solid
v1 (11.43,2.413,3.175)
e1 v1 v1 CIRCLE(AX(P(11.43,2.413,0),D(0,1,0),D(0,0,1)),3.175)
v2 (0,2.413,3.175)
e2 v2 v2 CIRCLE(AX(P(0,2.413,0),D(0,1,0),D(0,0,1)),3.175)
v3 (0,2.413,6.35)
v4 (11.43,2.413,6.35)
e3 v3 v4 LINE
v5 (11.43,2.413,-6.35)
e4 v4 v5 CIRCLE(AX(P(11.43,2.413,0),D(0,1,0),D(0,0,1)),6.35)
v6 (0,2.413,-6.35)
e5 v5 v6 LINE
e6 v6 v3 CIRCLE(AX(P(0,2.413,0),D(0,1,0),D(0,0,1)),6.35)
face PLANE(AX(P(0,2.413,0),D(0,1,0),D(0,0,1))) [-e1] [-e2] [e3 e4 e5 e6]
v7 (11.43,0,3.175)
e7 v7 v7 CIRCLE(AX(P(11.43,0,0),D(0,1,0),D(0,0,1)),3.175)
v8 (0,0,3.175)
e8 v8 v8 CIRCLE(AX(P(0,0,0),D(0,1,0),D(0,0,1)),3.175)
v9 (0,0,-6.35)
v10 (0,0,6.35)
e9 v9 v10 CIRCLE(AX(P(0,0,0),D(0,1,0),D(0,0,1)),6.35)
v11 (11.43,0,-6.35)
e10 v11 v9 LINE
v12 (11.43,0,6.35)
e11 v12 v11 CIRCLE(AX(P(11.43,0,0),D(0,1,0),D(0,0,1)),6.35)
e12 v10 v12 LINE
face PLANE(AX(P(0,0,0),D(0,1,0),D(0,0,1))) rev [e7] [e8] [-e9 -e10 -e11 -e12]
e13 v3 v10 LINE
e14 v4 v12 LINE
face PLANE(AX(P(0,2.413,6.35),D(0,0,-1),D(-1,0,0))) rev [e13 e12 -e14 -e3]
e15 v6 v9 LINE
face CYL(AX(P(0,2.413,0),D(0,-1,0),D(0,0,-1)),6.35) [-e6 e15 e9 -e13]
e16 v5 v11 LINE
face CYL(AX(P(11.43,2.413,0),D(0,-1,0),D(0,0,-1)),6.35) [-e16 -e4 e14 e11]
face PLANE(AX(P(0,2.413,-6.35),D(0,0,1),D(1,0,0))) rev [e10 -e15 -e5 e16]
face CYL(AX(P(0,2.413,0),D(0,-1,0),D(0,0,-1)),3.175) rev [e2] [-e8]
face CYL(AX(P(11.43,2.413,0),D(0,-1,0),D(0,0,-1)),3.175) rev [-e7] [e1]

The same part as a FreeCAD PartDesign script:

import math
import FreeCAD as App
import Part
import Sketcher
Q = App.Units.Quantity

doc = App.newDocument("Part")
body = doc.addObject("PartDesign::Body", "Body")

# Sketch on XZ plane
sketch1 = body.newObject("Sketcher::SketchObject", "Sketch")
sketch1.AttachmentSupport = (doc.getObject("XZ_Plane"), [""])
sketch1.MapMode = "FlatFace"
sketch1.addGeometry(Part.LineSegment(App.Vector(11.4, -6.3, 0), App.Vector(0, -6.3, 0)), False)
sketch1.addGeometry(Part.ArcOfCircle(Part.Circle(App.Vector(0, 0, 0), App.Vector(0, 0, 1), 6.3), math.radians(90), math.radians(270)), False)
sketch1.addGeometry(Part.LineSegment(App.Vector(0, 6.3, 0), App.Vector(11.4, 6.3, 0)), False)
sketch1.addGeometry(Part.ArcOfCircle(Part.Circle(App.Vector(11.4, 0, 0), App.Vector(0, 0, 1), 6.3), math.radians(-90), math.radians(90)), False)
sketch1.addGeometry(Part.Circle(App.Vector(11.4, 0, 0), App.Vector(0, 0, 1), 3.2), False)
sketch1.addGeometry(Part.Circle(App.Vector(0, 0, 0), App.Vector(0, 0, 1), 3.2), False)
sketch1.addConstraint(Sketcher.Constraint("Tangent", 0, 2, 1, 2))
sketch1.addConstraint(Sketcher.Constraint("Tangent", 1, 1, 2, 1))
sketch1.addConstraint(Sketcher.Constraint("Tangent", 2, 2, 3, 2))
sketch1.addConstraint(Sketcher.Constraint("Tangent", 3, 1, 0, 1))
sketch1.addConstraint(Sketcher.Constraint("Horizontal", 0))
sketch1.addConstraint(Sketcher.Constraint("Horizontal", 2))
sketch1.addConstraint(Sketcher.Constraint("Coincident", 1, 3, -1, 1))
sketch1.addConstraint(Sketcher.Constraint("Coincident", 5, 3, -1, 1))
sketch1.addConstraint(Sketcher.Constraint("Coincident", 4, 3, 3, 3))
sketch1.addConstraint(Sketcher.Constraint("Equal", 4, 5))
sketch1.addConstraint(Sketcher.Constraint("Diameter", 4, Q("0.25 in")))
sketch1.addConstraint(Sketcher.Constraint("Radius", 1, Q("0.25 in")))
sketch1.addConstraint(Sketcher.Constraint("DistanceX", 0, 2, 0, 1, Q("0.45 in")))
pad1 = body.newObject("PartDesign::Pad", "Pad")
pad1.Profile = sketch1
pad1.Length = Q("0.095 in")
pad1.Reversed = True

doc.recompute()
